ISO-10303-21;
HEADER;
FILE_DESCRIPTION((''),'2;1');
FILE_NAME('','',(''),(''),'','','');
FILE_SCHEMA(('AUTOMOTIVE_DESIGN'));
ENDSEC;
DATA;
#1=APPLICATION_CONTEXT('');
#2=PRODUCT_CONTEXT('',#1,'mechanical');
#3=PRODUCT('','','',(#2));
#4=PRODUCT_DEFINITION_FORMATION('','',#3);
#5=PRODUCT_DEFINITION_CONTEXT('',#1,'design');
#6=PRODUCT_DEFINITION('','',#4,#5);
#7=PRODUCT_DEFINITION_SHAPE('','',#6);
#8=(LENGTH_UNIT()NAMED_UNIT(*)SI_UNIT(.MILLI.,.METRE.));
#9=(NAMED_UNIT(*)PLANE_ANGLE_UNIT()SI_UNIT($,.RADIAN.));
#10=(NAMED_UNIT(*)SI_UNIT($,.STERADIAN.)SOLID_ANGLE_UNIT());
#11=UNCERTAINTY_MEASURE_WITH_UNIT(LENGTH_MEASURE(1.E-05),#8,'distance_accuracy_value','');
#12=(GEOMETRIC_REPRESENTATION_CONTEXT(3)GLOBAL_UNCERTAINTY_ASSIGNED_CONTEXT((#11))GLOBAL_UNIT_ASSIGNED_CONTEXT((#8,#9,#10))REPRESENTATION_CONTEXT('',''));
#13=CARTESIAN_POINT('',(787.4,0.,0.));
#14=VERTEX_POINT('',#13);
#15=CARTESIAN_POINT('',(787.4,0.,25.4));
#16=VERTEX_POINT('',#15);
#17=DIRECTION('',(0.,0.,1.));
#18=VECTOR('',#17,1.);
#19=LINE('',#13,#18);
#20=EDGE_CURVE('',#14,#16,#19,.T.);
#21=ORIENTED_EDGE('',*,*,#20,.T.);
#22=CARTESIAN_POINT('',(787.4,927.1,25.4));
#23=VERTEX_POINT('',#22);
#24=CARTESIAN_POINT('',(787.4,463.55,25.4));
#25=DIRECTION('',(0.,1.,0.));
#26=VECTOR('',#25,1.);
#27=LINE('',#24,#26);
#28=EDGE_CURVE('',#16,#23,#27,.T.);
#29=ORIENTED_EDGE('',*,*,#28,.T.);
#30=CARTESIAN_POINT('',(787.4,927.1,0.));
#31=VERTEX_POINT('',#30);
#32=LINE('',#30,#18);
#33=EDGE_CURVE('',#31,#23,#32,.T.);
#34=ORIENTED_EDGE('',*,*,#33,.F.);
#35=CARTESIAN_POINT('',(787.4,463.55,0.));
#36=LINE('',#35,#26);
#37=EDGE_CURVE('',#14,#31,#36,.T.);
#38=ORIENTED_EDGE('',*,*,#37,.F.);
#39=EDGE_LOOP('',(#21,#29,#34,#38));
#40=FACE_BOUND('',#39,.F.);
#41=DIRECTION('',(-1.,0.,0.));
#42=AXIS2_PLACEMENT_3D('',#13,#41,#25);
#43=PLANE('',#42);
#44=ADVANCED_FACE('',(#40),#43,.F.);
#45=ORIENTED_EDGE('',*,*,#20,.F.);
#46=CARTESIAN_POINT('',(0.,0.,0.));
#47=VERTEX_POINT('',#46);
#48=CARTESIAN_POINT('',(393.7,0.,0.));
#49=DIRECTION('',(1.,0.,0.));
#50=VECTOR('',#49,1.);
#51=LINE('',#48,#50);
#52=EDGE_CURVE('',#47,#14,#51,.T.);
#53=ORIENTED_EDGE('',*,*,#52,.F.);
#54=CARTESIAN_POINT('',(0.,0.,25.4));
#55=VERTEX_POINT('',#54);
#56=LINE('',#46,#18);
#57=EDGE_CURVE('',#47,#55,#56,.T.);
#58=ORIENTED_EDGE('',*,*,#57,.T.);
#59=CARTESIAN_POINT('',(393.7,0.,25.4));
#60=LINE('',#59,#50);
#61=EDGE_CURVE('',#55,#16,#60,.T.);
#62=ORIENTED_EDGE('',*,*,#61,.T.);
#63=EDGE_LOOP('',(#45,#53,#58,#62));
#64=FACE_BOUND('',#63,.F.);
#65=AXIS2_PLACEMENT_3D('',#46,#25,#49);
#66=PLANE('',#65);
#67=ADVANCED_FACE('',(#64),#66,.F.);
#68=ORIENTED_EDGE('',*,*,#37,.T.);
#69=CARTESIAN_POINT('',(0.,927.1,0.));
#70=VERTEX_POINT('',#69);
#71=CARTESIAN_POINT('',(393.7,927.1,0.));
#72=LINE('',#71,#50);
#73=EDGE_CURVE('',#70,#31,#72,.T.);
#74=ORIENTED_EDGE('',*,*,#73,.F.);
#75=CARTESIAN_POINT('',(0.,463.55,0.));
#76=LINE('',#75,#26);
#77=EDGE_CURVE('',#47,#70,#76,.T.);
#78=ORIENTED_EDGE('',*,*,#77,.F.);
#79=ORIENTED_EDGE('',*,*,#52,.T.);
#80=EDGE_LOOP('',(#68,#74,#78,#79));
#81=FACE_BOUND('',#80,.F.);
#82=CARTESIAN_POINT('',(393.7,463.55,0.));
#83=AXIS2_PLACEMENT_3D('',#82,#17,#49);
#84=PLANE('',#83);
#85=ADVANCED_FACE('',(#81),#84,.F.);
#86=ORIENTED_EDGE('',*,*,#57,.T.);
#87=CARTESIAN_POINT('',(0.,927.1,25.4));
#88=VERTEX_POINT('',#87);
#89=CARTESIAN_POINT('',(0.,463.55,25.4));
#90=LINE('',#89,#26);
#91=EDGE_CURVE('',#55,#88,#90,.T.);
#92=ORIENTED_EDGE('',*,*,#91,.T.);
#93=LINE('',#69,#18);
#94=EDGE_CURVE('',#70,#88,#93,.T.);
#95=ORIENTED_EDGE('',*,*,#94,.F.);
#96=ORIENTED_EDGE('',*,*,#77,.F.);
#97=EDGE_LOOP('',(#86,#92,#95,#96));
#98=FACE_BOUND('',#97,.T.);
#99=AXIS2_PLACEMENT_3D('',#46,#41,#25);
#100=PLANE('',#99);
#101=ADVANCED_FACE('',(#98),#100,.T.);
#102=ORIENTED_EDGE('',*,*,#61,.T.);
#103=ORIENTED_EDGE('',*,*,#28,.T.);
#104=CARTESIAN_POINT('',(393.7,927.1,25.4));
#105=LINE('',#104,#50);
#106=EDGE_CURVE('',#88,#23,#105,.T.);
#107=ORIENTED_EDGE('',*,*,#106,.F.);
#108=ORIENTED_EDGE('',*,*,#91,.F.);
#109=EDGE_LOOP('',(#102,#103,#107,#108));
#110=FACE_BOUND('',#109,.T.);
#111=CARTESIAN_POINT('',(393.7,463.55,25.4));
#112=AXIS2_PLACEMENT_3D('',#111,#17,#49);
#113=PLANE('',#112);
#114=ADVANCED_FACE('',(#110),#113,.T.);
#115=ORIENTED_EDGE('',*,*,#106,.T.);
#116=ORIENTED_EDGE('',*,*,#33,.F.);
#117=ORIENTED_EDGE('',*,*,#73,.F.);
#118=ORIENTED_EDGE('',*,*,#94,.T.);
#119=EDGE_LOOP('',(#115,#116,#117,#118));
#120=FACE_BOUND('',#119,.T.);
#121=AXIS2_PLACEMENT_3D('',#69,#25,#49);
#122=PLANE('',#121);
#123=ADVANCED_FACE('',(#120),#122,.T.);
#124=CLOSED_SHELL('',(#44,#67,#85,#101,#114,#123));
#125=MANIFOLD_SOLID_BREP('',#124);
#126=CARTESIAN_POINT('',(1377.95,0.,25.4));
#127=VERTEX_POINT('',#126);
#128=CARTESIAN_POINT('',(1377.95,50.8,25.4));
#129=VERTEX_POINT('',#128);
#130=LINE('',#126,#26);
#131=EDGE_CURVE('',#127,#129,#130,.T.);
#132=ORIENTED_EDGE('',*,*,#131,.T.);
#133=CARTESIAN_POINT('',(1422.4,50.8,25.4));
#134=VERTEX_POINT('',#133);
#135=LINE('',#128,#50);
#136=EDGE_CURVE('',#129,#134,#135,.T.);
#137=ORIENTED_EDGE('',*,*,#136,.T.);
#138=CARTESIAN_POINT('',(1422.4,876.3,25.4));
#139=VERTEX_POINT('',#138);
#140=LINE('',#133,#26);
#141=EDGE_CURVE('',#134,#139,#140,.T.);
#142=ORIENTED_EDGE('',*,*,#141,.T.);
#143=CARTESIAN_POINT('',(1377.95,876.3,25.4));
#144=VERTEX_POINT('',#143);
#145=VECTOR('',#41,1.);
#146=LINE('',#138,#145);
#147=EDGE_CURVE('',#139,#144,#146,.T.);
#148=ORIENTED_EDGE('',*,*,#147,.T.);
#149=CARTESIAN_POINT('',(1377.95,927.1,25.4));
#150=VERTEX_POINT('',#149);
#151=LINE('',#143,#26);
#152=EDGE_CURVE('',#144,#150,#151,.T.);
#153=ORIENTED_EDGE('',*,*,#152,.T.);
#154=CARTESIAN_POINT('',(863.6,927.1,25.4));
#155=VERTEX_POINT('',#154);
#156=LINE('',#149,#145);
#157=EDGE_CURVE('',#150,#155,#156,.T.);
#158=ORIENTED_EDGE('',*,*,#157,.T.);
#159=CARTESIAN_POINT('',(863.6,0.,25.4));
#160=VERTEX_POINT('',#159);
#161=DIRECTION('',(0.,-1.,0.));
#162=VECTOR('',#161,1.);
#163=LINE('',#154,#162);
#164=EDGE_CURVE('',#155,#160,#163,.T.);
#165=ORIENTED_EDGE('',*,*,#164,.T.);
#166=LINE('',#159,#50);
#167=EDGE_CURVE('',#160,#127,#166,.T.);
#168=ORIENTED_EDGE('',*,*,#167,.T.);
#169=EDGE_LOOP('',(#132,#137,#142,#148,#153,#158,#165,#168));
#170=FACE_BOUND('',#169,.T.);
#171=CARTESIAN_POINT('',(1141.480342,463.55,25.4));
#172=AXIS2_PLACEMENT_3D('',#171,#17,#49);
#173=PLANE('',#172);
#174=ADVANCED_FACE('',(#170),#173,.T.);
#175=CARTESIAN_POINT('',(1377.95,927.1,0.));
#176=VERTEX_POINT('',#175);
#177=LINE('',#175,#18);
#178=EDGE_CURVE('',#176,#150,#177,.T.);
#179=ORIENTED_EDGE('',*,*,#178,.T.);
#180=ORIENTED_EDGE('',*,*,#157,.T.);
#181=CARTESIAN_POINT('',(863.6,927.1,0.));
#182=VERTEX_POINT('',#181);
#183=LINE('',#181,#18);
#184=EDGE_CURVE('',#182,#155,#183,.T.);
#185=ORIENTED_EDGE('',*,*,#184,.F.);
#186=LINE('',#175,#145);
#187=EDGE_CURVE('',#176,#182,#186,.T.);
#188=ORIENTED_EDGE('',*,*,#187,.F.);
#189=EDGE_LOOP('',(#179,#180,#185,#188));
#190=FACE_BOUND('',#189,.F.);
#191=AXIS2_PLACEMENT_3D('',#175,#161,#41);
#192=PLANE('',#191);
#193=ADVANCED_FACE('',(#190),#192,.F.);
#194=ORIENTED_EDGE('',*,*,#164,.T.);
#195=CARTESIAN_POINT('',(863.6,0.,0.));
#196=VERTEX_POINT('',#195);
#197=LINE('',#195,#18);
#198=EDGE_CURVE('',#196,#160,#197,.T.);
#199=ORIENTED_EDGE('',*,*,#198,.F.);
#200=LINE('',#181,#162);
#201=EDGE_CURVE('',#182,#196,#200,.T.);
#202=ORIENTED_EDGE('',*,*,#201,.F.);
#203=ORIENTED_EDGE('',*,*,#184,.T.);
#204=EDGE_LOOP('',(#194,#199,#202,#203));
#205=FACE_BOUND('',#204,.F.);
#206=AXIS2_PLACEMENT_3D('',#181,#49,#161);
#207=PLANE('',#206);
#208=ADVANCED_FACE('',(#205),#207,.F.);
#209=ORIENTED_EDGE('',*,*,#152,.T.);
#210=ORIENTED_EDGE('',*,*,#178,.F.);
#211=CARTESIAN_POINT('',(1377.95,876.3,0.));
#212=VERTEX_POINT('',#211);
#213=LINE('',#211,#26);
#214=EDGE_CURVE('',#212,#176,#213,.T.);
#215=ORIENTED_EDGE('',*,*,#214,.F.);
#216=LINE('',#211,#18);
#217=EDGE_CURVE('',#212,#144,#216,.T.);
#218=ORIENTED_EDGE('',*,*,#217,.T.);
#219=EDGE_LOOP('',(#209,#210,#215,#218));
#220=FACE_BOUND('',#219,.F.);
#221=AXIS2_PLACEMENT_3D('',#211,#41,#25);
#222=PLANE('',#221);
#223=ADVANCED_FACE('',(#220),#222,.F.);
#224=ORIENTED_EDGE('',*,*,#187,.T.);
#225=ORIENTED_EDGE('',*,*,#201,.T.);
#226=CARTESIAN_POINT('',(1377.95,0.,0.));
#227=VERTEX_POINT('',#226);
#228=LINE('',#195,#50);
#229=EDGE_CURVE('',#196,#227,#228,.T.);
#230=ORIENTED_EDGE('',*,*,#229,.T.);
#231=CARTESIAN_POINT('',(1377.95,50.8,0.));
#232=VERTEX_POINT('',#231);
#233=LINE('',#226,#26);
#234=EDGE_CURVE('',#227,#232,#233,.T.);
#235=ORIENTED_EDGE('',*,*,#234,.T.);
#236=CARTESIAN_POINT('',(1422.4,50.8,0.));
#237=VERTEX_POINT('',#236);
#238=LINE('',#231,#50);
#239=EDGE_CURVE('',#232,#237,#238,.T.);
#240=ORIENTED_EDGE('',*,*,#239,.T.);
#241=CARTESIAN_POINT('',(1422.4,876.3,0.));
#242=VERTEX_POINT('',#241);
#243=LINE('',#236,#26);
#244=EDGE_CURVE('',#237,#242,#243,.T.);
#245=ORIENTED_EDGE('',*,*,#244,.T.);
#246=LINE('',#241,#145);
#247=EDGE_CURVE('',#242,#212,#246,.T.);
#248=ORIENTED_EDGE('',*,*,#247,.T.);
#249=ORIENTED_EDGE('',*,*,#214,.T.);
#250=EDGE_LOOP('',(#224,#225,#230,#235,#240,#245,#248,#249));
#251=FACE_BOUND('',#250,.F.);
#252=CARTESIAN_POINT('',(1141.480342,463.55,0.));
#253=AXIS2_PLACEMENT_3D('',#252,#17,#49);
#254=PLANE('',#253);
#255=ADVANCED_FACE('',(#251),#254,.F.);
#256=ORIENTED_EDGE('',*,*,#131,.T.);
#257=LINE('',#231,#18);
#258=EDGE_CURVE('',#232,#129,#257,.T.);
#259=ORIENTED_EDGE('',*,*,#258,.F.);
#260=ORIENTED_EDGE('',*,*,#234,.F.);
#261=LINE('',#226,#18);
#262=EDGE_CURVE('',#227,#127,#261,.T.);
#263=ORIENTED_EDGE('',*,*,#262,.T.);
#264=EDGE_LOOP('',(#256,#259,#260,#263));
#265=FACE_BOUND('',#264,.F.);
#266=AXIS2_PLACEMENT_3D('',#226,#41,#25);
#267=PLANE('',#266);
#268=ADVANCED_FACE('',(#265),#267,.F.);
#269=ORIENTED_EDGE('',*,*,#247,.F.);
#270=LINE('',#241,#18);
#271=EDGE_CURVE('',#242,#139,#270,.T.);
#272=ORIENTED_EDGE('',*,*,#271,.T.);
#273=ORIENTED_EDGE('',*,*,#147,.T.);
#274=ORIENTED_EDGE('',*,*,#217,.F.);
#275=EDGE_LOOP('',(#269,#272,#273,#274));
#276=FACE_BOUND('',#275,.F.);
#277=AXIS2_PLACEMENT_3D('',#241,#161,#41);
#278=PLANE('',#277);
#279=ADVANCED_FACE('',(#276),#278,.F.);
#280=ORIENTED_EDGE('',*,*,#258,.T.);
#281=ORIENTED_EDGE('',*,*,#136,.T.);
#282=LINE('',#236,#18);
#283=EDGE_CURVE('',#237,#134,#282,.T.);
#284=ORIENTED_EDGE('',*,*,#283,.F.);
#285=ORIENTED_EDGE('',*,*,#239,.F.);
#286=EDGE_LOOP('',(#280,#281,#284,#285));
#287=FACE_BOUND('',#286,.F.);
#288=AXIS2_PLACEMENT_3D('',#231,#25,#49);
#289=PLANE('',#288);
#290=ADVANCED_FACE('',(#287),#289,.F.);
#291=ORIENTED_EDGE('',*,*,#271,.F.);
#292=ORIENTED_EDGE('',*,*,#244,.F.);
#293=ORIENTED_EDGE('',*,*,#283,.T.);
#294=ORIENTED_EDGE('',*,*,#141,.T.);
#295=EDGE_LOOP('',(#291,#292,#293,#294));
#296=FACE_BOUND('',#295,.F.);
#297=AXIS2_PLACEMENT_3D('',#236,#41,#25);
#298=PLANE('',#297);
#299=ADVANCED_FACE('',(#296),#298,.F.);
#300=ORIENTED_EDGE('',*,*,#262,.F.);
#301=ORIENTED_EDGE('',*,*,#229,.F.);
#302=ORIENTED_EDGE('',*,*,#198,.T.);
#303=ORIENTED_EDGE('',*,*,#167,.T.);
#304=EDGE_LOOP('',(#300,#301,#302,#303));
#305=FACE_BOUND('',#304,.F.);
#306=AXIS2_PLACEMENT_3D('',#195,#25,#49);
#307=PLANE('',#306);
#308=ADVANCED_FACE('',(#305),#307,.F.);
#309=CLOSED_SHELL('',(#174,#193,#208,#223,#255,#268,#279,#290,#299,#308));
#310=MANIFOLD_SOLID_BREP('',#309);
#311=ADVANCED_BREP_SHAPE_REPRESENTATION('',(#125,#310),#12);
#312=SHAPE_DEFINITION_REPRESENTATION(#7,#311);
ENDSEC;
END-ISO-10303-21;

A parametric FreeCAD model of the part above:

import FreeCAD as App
import Part
import Sketcher

V = App.Vector
Q = App.Units.Quantity


def add_polygon(sketch, points):
    """Adds a closed chain of lines whose ends are joined by coincident constraints."""
    first, n = sketch.GeometryCount, len(points)
    for a, b in zip(points, points[1:] + points[:1]):
        sketch.addGeometry(Part.LineSegment(App.Vector(*a, 0), App.Vector(*b, 0)), False)
    for i in range(n):
        sketch.addConstraint(Sketcher.Constraint("Coincident", first + i, 2, first + (i + 1) % n, 1))

doc = App.newDocument("Part")
body = doc.addObject("PartDesign::Body", "Body")
body.AllowCompound = True

sketch1 = body.newObject("Sketcher::SketchObject", "Sketch")
sketch1.AttachmentSupport = (doc.getObject("XY_Plane"), [""])
sketch1.MapMode = "FlatFace"
add_polygon(sketch1, [(0, 927.1), (0, 0), (787.4, 0), (787.4, 927.1)])
add_polygon(sketch1, [(863.6, 927.1), (863.6, 0), (1377.95, 0), (1377.95, 50.8), (1422.4, 50.8), (1422.4, 876.3), (1377.95, 876.3), (1377.95, 927.1)])
sketch1.addConstraint([
    Sketcher.Constraint("Vertical", 0),
    Sketcher.Constraint("Horizontal", 1),
    Sketcher.Constraint("Vertical", 2),
    Sketcher.Constraint("Horizontal", 3),
    Sketcher.Constraint("Vertical", 4),
    Sketcher.Constraint("Horizontal", 5),
    Sketcher.Constraint("Vertical", 6),
    Sketcher.Constraint("Horizontal", 7),
    Sketcher.Constraint("Vertical", 8),
    Sketcher.Constraint("Horizontal", 9),
    Sketcher.Constraint("Vertical", 10),
    Sketcher.Constraint("Horizontal", 11),
    Sketcher.Constraint("Coincident", 0, 2, -1, 1),
    Sketcher.Constraint("PointOnObject", 4, 2, -1),
    Sketcher.Constraint("Horizontal", 3, 2, 10, 2),
    Sketcher.Constraint("Vertical", 6, 2, 9, 2),
    Sketcher.Constraint("Equal", 6, 10),
    Sketcher.Constraint("DistanceX", 1, 1, 1, 2, Q("31 in")),
    Sketcher.Constraint("DistanceY", 6, 1, 6, 2, Q("2 in")),
    Sketcher.Constraint("DistanceY", 0, 2, 0, 1, Q("36.5 in")),
    Sketcher.Constraint("DistanceX", -1, 1, 4, 2, Q("34 in")),
    Sketcher.Constraint("DistanceX", -1, 1, 7, 2, Q("56 in")),
    Sketcher.Constraint("DistanceX", 5, 1, 5, 2, Q("20.25 in")),
])
pad1 = body.newObject("PartDesign::Pad", "Pad")
pad1.Profile = sketch1
pad1.Length = Q("1 in")

doc.recompute()
